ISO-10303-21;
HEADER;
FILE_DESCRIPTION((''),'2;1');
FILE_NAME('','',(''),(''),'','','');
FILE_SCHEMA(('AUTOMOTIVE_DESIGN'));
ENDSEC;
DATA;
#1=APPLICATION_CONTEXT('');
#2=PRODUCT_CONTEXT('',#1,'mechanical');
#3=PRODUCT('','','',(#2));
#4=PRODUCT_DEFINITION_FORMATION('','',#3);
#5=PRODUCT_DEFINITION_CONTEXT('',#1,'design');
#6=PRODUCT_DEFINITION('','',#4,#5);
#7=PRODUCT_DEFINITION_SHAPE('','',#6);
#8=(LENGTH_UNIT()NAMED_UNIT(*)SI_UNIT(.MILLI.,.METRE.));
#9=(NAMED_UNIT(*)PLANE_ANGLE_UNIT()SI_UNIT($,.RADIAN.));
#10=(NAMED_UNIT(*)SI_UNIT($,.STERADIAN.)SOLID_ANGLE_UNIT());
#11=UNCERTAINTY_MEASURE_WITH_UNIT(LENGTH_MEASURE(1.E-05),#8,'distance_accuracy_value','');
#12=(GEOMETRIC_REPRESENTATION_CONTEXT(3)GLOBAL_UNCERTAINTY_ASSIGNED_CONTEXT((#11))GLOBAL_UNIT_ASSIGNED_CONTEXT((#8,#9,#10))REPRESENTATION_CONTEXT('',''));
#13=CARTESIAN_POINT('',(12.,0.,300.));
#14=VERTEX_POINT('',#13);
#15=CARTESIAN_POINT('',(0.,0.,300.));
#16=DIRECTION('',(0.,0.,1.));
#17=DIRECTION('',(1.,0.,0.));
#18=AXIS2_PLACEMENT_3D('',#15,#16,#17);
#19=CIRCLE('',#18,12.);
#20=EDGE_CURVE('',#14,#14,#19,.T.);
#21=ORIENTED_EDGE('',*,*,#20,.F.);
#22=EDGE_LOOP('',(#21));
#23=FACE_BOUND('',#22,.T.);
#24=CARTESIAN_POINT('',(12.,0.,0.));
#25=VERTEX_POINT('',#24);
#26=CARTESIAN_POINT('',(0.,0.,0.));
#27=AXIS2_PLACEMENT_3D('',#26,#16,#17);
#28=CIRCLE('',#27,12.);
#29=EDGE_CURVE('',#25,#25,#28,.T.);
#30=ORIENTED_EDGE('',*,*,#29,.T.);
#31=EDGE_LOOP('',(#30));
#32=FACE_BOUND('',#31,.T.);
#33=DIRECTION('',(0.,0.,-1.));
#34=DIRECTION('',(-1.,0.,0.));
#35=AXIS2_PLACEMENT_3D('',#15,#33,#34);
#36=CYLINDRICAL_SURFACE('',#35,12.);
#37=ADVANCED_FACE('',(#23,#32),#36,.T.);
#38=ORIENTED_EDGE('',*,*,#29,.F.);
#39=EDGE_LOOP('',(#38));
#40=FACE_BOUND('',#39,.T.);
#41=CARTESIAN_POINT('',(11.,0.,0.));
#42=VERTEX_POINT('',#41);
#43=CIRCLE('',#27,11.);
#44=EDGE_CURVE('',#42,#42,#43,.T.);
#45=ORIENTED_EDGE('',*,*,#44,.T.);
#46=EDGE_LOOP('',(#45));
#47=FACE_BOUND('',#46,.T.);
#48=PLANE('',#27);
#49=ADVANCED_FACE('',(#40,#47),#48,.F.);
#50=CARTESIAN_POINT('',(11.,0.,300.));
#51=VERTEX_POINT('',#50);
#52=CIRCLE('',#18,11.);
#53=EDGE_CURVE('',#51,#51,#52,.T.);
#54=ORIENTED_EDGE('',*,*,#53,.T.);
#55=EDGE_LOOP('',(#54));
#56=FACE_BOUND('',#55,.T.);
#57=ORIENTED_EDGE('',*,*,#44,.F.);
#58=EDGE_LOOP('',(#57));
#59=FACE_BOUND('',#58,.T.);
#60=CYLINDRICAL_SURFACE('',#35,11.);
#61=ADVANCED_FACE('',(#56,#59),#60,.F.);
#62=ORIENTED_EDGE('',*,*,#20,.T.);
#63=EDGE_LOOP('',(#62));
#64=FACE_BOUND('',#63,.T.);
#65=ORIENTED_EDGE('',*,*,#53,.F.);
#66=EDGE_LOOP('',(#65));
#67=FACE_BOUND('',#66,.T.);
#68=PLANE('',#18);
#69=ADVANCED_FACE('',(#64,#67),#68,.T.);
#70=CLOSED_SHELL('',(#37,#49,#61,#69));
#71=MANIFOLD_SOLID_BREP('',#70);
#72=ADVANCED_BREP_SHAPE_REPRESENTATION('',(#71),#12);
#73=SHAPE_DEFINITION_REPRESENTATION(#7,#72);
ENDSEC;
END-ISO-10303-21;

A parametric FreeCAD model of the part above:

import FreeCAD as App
import Part
import Sketcher
from FreeCAD import Vector
Q = App.Units.Quantity

doc = App.newDocument("Part")
params = doc.addObject("Spreadsheet::Sheet", "Params")
for row, (alias, value) in enumerate([
    ("sketch1_diameter", "24 mm"),
    ("sketch1_diameter2", "22 mm"),
    ("pad1_length", "300 mm"),
], start=1):
    params.set(f"A{row}", alias)
    params.set(f"B{row}", "=" + value)
    params.setAlias(f"B{row}", alias)

body = doc.addObject("PartDesign::Body", "Body")

# Sketch on XY plane
sketch1 = body.newObject("Sketcher::SketchObject", "Sketch")
sketch1.AttachmentSupport = (doc.getObject("XY_Plane"), [""])
sketch1.MapMode = "FlatFace"
sketch1.addGeometry([
    Part.Circle(Vector(0, 0, 0), Vector(0, 0, 1), 12),
    Part.Circle(Vector(0, 0, 0), Vector(0, 0, 1), 11),
], False)
sketch1.addConstraint([
    Sketcher.Constraint("Coincident", 0, 3, -1, 1),
    Sketcher.Constraint("Coincident", 1, 3, -1, 1),
    Sketcher.Constraint("Diameter", 0, Q("24 mm")),
    Sketcher.Constraint("Diameter", 1, Q("22 mm")),
])
sketch1.setExpression("Constraints[2]", "Params.sketch1_diameter")
sketch1.setExpression("Constraints[3]", "Params.sketch1_diameter2")
pad1 = body.newObject("PartDesign::Pad", "Pad")
pad1.Profile = sketch1
pad1.setExpression("Length", "Params.pad1_length")

doc.recompute()
